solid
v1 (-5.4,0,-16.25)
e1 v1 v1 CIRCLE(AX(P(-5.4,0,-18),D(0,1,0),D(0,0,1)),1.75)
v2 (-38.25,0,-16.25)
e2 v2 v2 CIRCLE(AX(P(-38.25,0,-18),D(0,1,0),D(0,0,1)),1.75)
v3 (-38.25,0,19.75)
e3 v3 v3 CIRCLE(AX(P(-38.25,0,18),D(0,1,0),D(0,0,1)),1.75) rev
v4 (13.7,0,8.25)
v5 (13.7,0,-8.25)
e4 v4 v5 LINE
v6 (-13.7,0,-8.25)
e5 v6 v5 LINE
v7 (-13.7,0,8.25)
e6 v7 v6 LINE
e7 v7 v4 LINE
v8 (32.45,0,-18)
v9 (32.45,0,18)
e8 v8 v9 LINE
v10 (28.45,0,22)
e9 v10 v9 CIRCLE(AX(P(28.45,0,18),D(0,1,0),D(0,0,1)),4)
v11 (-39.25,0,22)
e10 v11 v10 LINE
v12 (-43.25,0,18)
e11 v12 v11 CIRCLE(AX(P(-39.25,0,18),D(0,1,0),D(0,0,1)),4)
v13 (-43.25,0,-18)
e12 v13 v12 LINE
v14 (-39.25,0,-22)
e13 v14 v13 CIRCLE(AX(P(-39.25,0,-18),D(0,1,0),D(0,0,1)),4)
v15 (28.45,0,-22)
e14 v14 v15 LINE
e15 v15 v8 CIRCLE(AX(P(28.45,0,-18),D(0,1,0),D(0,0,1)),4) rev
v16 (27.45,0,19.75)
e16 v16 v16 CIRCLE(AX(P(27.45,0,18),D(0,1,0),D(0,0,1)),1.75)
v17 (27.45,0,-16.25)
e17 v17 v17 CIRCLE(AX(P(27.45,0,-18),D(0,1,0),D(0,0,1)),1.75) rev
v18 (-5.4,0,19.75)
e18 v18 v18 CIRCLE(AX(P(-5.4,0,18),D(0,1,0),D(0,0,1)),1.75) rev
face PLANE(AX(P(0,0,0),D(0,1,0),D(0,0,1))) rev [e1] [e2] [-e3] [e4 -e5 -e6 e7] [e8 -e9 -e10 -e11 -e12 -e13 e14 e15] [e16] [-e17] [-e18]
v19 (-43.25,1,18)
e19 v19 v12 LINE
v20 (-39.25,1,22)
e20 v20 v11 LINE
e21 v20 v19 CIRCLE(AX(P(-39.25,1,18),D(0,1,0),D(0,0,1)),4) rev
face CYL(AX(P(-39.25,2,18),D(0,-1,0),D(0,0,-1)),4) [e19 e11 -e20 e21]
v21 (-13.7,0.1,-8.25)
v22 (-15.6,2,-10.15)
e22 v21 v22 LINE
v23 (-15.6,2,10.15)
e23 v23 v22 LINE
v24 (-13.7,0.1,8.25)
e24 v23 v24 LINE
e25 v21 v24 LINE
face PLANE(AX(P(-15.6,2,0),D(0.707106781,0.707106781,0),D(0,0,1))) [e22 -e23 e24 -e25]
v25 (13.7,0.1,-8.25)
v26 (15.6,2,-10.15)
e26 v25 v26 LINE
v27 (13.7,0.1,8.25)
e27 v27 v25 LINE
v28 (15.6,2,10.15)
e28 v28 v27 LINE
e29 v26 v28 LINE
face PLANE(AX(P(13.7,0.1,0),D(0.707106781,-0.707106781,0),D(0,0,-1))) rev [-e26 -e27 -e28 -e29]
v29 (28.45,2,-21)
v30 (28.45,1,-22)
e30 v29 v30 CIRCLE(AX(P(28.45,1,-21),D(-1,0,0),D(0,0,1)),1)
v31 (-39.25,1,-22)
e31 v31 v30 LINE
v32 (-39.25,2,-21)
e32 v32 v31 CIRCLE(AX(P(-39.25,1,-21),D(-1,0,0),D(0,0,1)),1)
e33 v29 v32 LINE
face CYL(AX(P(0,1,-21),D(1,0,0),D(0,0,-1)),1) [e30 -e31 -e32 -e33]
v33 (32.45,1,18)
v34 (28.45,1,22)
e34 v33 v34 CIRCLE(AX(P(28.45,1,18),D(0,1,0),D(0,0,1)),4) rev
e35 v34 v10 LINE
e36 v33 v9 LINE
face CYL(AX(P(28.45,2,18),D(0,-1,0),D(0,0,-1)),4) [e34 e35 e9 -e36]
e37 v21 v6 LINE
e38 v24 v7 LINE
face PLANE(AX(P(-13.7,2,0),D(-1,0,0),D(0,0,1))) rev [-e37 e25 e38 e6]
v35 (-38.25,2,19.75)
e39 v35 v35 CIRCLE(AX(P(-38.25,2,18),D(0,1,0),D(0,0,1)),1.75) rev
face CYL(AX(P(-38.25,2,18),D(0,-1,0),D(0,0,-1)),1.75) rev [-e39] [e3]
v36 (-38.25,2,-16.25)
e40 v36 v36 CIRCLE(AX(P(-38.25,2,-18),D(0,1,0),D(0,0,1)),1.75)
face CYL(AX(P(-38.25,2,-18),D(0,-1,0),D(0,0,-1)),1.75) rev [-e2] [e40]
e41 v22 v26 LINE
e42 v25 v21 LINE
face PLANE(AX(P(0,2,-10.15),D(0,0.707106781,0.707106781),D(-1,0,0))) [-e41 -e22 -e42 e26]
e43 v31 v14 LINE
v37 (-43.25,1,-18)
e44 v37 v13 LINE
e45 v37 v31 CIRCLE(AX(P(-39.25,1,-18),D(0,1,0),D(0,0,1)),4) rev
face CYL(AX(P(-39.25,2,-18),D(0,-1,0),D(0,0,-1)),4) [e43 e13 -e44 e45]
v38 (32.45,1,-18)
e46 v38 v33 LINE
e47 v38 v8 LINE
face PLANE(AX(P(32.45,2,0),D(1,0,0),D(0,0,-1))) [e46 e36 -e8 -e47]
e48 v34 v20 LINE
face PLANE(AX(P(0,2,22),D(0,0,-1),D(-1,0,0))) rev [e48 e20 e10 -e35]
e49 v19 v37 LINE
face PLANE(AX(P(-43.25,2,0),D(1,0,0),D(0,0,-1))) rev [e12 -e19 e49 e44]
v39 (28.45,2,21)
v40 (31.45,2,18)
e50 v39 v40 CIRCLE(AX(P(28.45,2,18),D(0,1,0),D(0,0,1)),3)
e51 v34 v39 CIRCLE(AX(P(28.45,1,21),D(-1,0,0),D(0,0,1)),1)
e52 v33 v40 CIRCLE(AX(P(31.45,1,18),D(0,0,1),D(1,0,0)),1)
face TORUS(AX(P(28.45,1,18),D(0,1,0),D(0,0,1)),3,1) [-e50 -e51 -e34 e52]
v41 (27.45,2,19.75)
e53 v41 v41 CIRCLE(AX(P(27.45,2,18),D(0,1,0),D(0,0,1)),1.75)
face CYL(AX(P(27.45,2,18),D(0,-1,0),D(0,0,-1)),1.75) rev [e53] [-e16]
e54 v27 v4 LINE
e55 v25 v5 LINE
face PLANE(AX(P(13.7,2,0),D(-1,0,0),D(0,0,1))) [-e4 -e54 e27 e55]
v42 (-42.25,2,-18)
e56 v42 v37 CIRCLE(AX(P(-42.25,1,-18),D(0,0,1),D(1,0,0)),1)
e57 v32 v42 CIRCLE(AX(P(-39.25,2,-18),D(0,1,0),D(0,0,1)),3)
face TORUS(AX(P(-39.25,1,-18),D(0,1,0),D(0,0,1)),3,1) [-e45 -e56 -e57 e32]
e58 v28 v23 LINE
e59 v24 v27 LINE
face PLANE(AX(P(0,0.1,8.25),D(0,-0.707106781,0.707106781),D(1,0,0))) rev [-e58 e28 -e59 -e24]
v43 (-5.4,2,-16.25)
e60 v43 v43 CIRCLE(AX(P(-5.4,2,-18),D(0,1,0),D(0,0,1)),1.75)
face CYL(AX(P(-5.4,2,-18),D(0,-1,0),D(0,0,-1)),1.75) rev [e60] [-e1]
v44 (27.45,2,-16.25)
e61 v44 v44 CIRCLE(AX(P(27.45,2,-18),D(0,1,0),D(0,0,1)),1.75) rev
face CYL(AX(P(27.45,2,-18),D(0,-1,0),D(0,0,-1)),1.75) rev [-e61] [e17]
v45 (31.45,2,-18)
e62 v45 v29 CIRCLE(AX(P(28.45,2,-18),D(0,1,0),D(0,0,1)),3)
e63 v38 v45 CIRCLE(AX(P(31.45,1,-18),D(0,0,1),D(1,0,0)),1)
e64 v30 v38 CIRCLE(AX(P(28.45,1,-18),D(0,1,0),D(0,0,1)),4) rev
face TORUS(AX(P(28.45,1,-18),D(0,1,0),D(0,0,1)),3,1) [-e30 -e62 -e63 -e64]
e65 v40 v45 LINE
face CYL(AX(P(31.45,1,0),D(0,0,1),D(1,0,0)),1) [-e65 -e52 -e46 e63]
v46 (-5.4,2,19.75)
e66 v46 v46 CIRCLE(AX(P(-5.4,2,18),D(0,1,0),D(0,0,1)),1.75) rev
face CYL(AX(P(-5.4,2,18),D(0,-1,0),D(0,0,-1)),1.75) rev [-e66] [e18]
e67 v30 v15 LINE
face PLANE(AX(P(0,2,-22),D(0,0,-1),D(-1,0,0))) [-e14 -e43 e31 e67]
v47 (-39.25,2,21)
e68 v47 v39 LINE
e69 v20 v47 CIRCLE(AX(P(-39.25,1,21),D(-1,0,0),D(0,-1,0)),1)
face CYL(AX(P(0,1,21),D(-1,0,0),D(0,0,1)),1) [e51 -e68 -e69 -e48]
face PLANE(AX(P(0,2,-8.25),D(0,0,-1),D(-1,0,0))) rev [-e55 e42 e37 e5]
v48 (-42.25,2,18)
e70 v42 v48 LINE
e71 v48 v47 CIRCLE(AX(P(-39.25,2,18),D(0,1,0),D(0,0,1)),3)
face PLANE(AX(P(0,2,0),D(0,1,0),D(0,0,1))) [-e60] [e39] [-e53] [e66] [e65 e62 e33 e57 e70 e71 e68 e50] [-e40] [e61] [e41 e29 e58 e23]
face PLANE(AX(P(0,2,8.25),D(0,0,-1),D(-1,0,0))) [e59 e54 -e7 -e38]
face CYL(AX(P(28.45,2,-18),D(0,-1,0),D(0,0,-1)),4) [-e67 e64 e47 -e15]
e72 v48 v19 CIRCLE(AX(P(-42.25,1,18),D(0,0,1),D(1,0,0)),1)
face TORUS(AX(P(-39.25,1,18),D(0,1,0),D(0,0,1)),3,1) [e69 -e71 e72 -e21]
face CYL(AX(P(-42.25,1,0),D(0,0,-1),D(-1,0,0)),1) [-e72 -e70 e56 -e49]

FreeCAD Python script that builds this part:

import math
import FreeCAD as App
import Part
import Sketcher

V = App.Vector


def edges_at(feature, points):
    """Names of the edges that pass closest to the given points."""
    edges = feature.Shape.Edges
    near = lambda p: min(range(len(edges)), key=lambda i: edges[i].distToShape(Part.Vertex(*p))[0])
    return sorted({f"Edge{near(p) + 1}" for p in points})


def add_polygon(sketch, points):
    """Adds a closed chain of lines whose ends are joined by coincident constraints."""
    first, n = sketch.GeometryCount, len(points)
    for a, b in zip(points, points[1:] + points[:1]):
        sketch.addGeometry(Part.LineSegment(App.Vector(*a, 0), App.Vector(*b, 0)), False)
    for i in range(n):
        sketch.addConstraint(Sketcher.Constraint("Coincident", first + i, 2, first + (i + 1) % n, 1))

doc = App.newDocument("Part")
body = doc.addObject("PartDesign::Body", "Body")

sketch1 = body.newObject("Sketcher::SketchObject", "Sketch")
sketch1.AttachmentSupport = (doc.getObject("XZ_Plane"), [""])
sketch1.MapMode = "FlatFace"
sketch1.addGeometry(Part.LineSegment(V(28.4, -22, 0), V(-39.2, -22, 0)), False)
sketch1.addGeometry(Part.ArcOfCircle(Part.Circle(V(-39.3, -18, 0), V(0, 0, 1), 4), math.radians(180), math.radians(270)), False)
sketch1.addGeometry(Part.LineSegment(V(-43.2, -18, 0), V(-43.2, 18, 0)), False)
sketch1.addGeometry(Part.ArcOfCircle(Part.Circle(V(-39.3, 18, 0), V(0, 0, 1), 4), math.radians(90), math.radians(180)), False)
sketch1.addGeometry(Part.LineSegment(V(-39.2, 22, 0), V(28.4, 22, 0)), False)
sketch1.addGeometry(Part.ArcOfCircle(Part.Circle(V(28.5, 18, 0), V(0, 0, 1), 4), math.radians(0), math.radians(90)), False)
sketch1.addGeometry(Part.LineSegment(V(32.5, 18, 0), V(32.5, -18, 0)), False)
sketch1.addGeometry(Part.ArcOfCircle(Part.Circle(V(28.5, -18, 0), V(0, 0, 1), 4), math.radians(-90), math.radians(0)), False)
sketch1.addGeometry(Part.Circle(V(27.4, 18, 0), V(0, 0, 1), 1.8), False)
sketch1.addGeometry(Part.Circle(V(-5.4, 18, 0), V(0, 0, 1), 1.8), False)
sketch1.addGeometry(Part.Circle(V(-38.2, 18, 0), V(0, 0, 1), 1.8), False)
sketch1.addGeometry(Part.Circle(V(27.4, -18, 0), V(0, 0, 1), 1.8), False)
sketch1.addGeometry(Part.Circle(V(-5.4, -18, 0), V(0, 0, 1), 1.8), False)
sketch1.addGeometry(Part.Circle(V(-38.2, -18, 0), V(0, 0, 1), 1.8), False)
add_polygon(sketch1, [(-13.7, 8.2), (-13.7, -8.2), (13.7, -8.2), (13.7, 8.2)])
sketch1.addConstraint([
    Sketcher.Constraint("Tangent", 0, 2, 1, 2),
    Sketcher.Constraint("Tangent", 1, 1, 2, 1),
    Sketcher.Constraint("Tangent", 2, 2, 3, 2),
    Sketcher.Constraint("Tangent", 3, 1, 4, 1),
    Sketcher.Constraint("Tangent", 4, 2, 5, 2),
    Sketcher.Constraint("Tangent", 5, 1, 6, 1),
    Sketcher.Constraint("Tangent", 6, 2, 7, 2),
    Sketcher.Constraint("Tangent", 7, 1, 0, 1),
    Sketcher.Constraint("Horizontal", 0),
    Sketcher.Constraint("Vertical", 2),
    Sketcher.Constraint("Horizontal", 4),
    Sketcher.Constraint("Vertical", 6),
    Sketcher.Constraint("Vertical", 14),
    Sketcher.Constraint("Horizontal", 15),
    Sketcher.Constraint("Vertical", 16),
    Sketcher.Constraint("Horizontal", 17),
    Sketcher.Constraint("Equal", 1, 3),
    Sketcher.Constraint("Equal", 3, 5),
    Sketcher.Constraint("Equal", 5, 7),
    Sketcher.Constraint("Equal", 8, 9),
    Sketcher.Constraint("Equal", 9, 10),
    Sketcher.Constraint("Equal", 10, 11),
    Sketcher.Constraint("Equal", 11, 12),
    Sketcher.Constraint("Equal", 12, 13),
    Sketcher.Constraint("Symmetric", 14, 2, 16, 2, -1, 1),
    Sketcher.Constraint("Symmetric", 8, 3, 11, 3, -1),
    Sketcher.Constraint("Symmetric", 9, 3, 12, 3, -1),
    Sketcher.Constraint("Symmetric", 10, 3, 13, 3, -1),
    Sketcher.Constraint("Horizontal", 5, 3, 8, 3),
    Sketcher.Constraint("Horizontal", 8, 3, 9, 3),
    Sketcher.Constraint("Horizontal", 9, 3, 10, 3),
    Sketcher.Constraint("Horizontal", 7, 3, 11, 3),
    Sketcher.Constraint("Radius", 1, 4.0),
    Sketcher.Constraint("Diameter", 8, 3.5),
    Sketcher.Constraint("DistanceY", 2, 1, 2, 2, 36.0),
    Sketcher.Constraint("DistanceX", 0, 2, 0, 1, 67.7),
    Sketcher.Constraint("DistanceX", 15, 1, 15, 2, 27.4),
    Sketcher.Constraint("DistanceY", 14, 2, 14, 1, 16.5),
    Sketcher.Constraint("DistanceX", 8, 3, 5, 3, 1.0),
    Sketcher.Constraint("DistanceX", 3, 3, 10, 3, 1.0),
    Sketcher.Constraint("DistanceX", 9, 3, -1, 1, 5.4),
    Sketcher.Constraint("DistanceX", 1, 3, -1, 1, 39.25),
])
pad1 = body.newObject("PartDesign::Pad", "Pad")
pad1.Profile = sketch1
pad1.Length = 2
pad1.Reversed = True

sketch2 = body.newObject("Sketcher::SketchObject", "Sketch001")
sketch2.AttachmentSupport = (doc.getObject("XZ_Plane"), [""])
sketch2.MapMode = "FlatFace"
add_polygon(sketch2, [(-16, -10), (-16, 10), (16, 10), (16, -10)])
add_polygon(sketch2, [(14, 8), (-14, 8), (-14, -8), (14, -8)])
sketch2.addConstraint([
    Sketcher.Constraint("Vertical", 0),
    Sketcher.Constraint("Horizontal", 1),
    Sketcher.Constraint("Vertical", 2),
    Sketcher.Constraint("Horizontal", 3),
    Sketcher.Constraint("Horizontal", 4),
    Sketcher.Constraint("Vertical", 5),
    Sketcher.Constraint("Horizontal", 6),
    Sketcher.Constraint("Vertical", 7),
    Sketcher.Constraint("Symmetric", 0, 2, 2, 2, -1, 1),
    Sketcher.Constraint("Symmetric", 4, 2, 6, 2, -1, 1),
    Sketcher.Constraint("DistanceX", 1, 1, 1, 2, 31.5),
    Sketcher.Constraint("DistanceX", 4, 2, 4, 1, 27.4),
    Sketcher.Constraint("DistanceY", 0, 1, 0, 2, 20.5),
    Sketcher.Constraint("DistanceY", 5, 2, 5, 1, 16.5),
])
pad2 = body.newObject("PartDesign::Pad", "Pad001")
pad2.Profile = sketch2
pad2.Length = 1
pad2.Reversed = True
doc.recompute()

fillet = body.newObject("PartDesign::Fillet", "Fillet")
fillet.Base = (pad2, edges_at(pad2, [
    (-5.4, 2, -22),
    (-42.078, 2, -20.828),
    (-43.25, 2, 0),
    (-42.078, 2, 20.828),
    (-5.4, 2, 22),
    (31.278, 2, 20.828),
    (32.45, 2, 0),
    (31.278, 2, -20.828),
]))
fillet.Radius = 1
doc.recompute()

chamfer = body.newObject("PartDesign::Chamfer", "Chamfer")
chamfer.Base = (fillet, edges_at(fillet, [
    (13.7, 2, 0),
    (0, 2, 8.25),
    (-13.7, 2, 0),
    (0, 2, -8.25),
]))
chamfer.Size = 1.9

doc.recompute()
